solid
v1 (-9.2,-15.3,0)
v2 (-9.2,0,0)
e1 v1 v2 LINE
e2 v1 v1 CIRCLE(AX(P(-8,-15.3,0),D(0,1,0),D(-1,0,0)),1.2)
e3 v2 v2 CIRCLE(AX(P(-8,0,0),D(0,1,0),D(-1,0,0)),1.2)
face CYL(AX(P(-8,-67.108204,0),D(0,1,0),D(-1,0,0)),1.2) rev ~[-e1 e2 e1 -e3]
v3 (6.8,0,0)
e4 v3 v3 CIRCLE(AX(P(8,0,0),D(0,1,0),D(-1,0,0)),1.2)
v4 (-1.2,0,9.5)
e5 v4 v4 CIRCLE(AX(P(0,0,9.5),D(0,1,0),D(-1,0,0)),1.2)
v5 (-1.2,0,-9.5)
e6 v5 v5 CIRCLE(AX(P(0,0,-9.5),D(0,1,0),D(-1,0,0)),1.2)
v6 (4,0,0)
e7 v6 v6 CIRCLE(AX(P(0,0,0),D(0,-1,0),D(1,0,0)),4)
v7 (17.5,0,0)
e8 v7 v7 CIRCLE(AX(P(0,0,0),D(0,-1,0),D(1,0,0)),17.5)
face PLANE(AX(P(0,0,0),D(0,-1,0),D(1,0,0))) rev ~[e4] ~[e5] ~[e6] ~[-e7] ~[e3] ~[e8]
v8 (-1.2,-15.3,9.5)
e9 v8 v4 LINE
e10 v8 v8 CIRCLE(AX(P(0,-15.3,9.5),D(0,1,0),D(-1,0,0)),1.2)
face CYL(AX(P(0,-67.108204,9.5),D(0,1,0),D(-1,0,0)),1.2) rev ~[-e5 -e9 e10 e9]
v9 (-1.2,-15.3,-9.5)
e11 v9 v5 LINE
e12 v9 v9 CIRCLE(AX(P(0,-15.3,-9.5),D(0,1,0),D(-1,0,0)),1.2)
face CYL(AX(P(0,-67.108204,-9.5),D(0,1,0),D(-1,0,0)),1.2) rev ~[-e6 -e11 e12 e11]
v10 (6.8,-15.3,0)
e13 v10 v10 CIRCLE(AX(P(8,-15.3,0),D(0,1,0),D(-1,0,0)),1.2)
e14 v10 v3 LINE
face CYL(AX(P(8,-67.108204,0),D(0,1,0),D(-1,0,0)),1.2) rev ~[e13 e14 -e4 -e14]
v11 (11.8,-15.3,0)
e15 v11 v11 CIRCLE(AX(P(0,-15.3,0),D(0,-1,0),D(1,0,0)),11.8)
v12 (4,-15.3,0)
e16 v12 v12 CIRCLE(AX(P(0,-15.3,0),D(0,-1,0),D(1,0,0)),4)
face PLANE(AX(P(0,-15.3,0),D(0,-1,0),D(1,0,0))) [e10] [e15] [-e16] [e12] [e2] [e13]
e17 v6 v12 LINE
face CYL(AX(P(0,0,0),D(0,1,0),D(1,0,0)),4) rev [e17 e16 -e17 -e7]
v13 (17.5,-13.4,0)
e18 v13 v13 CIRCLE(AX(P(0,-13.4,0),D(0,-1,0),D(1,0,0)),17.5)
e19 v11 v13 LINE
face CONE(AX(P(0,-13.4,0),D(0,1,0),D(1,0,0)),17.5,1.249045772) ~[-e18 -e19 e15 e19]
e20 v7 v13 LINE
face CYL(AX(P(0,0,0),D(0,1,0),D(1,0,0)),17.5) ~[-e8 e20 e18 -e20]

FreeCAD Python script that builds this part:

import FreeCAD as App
import Part
import Sketcher
Q = App.Units.Quantity


def edges_at(feature, points):
    """Names of the edges that pass closest to the given points."""
    edges = feature.Shape.Edges
    near = lambda p: min(range(len(edges)), key=lambda i: edges[i].distToShape(Part.Vertex(*p))[0])
    return sorted({f"Edge{near(p) + 1}" for p in points})

doc = App.newDocument("Part")
params = doc.addObject("Spreadsheet::Sheet", "Params")
for row, (alias, value) in enumerate([
    ("sketch1_diameter", "35 mm"),
    ("sketch1_diameter2", "8 mm"),
    ("pad1_length", "15.3 mm"),
    ("chamfer_size", "5.7 mm"),
    ("chamfer_size2", "1.9 mm"),
    ("sketch2_diameter", "2.4 mm"),
    ("hole_diameter", "2.4 mm"),
], start=1):
    params.set(f"A{row}", alias)
    params.set(f"B{row}", "=" + value)
    params.setAlias(f"B{row}", alias)

body = doc.addObject("PartDesign::Body", "Body")

sketch1 = doc.addObject("Sketcher::SketchObject", "Sketch")
body.addObject(sketch1)
sketch1.AttachmentSupport = (doc.XZ_Plane, [""])
sketch1.MapMode = "FlatFace"
sketch1.addGeometry([
    Part.Circle(App.Vector(0, 0, 0), App.Vector(0, 0, 1), 17.5),
    Part.Circle(App.Vector(0, 0, 0), App.Vector(0, 0, 1), 4),
], False)
sketch1.addConstraint([
    Sketcher.Constraint("Coincident", 0, 3, -1, 1),
    Sketcher.Constraint("Coincident", 1, 3, -1, 1),
    Sketcher.Constraint("Diameter", 0, Q("35 mm")),
    Sketcher.Constraint("Diameter", 1, Q("8 mm")),
])
sketch1.setExpression("Constraints[2]", "Params.sketch1_diameter")
sketch1.setExpression("Constraints[3]", "Params.sketch1_diameter2")
pad1 = doc.addObject("PartDesign::Pad", "Pad")
body.addObject(pad1)
pad1.Profile = sketch1
pad1.setExpression("Length", "Params.pad1_length")
doc.recompute()

chamfer = doc.addObject("PartDesign::Chamfer", "Chamfer")
body.addObject(chamfer)
chamfer.Base = (pad1, edges_at(pad1, [(-17.5, -15.3, 0)]))
chamfer.ChamferType = "Two distances"
chamfer.setExpression("Size", "Params.chamfer_size")
chamfer.setExpression("Size2", "Params.chamfer_size2")
chamfer.FlipDirection = True

sketch2 = doc.addObject("Sketcher::SketchObject", "Sketch001")
body.addObject(sketch2)
sketch2.AttachmentSupport = (doc.XZ_Plane, [""])
sketch2.MapMode = "FlatFace"
sketch2.AttachmentOffset = App.Placement(App.Vector(0, 0, 15.3), App.Rotation())
sketch2.addGeometry([
    Part.Circle(App.Vector(0, 9.5, 0), App.Vector(0, 0, 1), 1.2),
    Part.Circle(App.Vector(-8, 0, 0), App.Vector(0, 0, 1), 1.2),
    Part.Circle(App.Vector(0, -9.5, 0), App.Vector(0, 0, 1), 1.2),
    Part.Circle(App.Vector(8, 0, 0), App.Vector(0, 0, 1), 1.2),
], False)
sketch2.addConstraint([
    Sketcher.Constraint("Equal", 0, 1),
    Sketcher.Constraint("Equal", 1, 2),
    Sketcher.Constraint("Equal", 2, 3),
    Sketcher.Constraint("Symmetric", 0, 3, 2, 3, -1, 1),
    Sketcher.Constraint("Symmetric", 1, 3, 3, 3, -1, 1),
    Sketcher.Constraint("PointOnObject", 0, 3, -2),
    Sketcher.Constraint("PointOnObject", 1, 3, -1),
    Sketcher.Constraint("Diameter", 0, Q("2.4 mm")),
    Sketcher.Constraint("DistanceX", 1, 3, -1, 1, Q("8 mm")),
    Sketcher.Constraint("DistanceY", 2, 3, 0, 3, Q("19 mm")),
])
sketch2.setExpression("Constraints[7]", "Params.sketch2_diameter")
doc.recompute()
hole = doc.addObject("PartDesign::Hole", "Hole")
body.addObject(hole)
hole.Profile = sketch2
hole.ThreadType = "None"
hole.setExpression("Diameter", "Params.hole_diameter")
hole.DepthType = "ThroughAll"

doc.recompute()
